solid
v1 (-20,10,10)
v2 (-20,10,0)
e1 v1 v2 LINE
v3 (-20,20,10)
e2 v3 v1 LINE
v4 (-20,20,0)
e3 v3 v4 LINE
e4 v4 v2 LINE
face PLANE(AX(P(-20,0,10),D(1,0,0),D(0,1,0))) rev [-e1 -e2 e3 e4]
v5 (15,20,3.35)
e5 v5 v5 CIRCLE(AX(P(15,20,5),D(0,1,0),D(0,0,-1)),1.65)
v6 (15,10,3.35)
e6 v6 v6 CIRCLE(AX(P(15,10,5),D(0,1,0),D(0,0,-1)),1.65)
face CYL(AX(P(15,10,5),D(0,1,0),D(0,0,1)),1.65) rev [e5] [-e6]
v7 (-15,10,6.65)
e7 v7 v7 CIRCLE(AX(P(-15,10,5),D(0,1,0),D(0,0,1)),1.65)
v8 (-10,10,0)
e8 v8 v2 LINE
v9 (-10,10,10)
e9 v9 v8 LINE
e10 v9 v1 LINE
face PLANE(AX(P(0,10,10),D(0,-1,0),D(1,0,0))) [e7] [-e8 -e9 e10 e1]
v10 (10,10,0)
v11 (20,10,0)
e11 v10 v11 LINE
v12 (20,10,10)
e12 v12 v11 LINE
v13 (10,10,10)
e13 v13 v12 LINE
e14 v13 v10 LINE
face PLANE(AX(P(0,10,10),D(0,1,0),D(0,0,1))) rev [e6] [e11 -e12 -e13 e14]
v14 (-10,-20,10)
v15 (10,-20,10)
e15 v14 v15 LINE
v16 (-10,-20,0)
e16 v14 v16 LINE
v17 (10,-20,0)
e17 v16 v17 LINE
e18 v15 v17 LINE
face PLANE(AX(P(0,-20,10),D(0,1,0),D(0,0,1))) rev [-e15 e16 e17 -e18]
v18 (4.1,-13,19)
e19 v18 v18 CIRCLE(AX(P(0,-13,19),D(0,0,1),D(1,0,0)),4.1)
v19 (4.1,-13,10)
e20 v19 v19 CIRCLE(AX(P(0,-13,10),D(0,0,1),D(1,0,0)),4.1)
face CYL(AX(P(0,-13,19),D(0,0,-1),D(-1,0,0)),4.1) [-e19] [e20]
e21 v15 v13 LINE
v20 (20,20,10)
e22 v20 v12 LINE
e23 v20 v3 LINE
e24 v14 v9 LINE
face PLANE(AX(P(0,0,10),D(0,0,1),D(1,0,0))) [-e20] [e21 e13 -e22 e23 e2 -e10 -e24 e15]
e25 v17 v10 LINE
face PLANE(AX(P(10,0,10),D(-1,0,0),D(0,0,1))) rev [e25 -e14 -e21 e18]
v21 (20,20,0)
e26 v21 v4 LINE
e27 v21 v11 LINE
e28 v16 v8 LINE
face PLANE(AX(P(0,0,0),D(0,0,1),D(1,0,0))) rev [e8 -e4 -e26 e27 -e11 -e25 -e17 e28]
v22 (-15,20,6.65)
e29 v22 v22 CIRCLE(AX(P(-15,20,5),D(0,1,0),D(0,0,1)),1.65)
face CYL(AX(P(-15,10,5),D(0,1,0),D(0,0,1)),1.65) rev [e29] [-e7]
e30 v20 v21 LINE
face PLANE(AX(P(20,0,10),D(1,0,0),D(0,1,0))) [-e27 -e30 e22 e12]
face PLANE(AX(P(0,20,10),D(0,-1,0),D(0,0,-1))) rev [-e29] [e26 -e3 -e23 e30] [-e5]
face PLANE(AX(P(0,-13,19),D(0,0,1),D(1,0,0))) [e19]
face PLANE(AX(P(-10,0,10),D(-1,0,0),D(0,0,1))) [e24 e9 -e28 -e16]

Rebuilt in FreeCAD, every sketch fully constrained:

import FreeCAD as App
import Part
import Sketcher

doc = App.newDocument("Part")
body = doc.addObject("PartDesign::Body", "Body")

# Sketch on XY plane
sketch1 = doc.addObject("Sketcher::SketchObject", "Sketch")
body.addObject(sketch1)
sketch1.AttachmentSupport = (doc.XY_Plane, [""])
sketch1.MapMode = "FlatFace"
sketch1.addGeometry(Part.LineSegment(App.Vector(-20, 20, 0), App.Vector(-20, 10, 0)), False)
sketch1.addGeometry(Part.LineSegment(App.Vector(-20, 10, 0), App.Vector(-10, 10, 0)), False)
sketch1.addGeometry(Part.LineSegment(App.Vector(-10, 10, 0), App.Vector(-10, -20, 0)), False)
sketch1.addGeometry(Part.LineSegment(App.Vector(-10, -20, 0), App.Vector(10, -20, 0)), False)
sketch1.addGeometry(Part.LineSegment(App.Vector(10, -20, 0), App.Vector(10, 10, 0)), False)
sketch1.addGeometry(Part.LineSegment(App.Vector(10, 10, 0), App.Vector(20, 10, 0)), False)
sketch1.addGeometry(Part.LineSegment(App.Vector(20, 10, 0), App.Vector(20, 20, 0)), False)
sketch1.addGeometry(Part.LineSegment(App.Vector(20, 20, 0), App.Vector(-20, 20, 0)), False)
sketch1.addConstraint(Sketcher.Constraint("Coincident", 0, 2, 1, 1))
sketch1.addConstraint(Sketcher.Constraint("Coincident", 1, 2, 2, 1))
sketch1.addConstraint(Sketcher.Constraint("Coincident", 2, 2, 3, 1))
sketch1.addConstraint(Sketcher.Constraint("Coincident", 3, 2, 4, 1))
sketch1.addConstraint(Sketcher.Constraint("Coincident", 4, 2, 5, 1))
sketch1.addConstraint(Sketcher.Constraint("Coincident", 5, 2, 6, 1))
sketch1.addConstraint(Sketcher.Constraint("Coincident", 6, 2, 7, 1))
sketch1.addConstraint(Sketcher.Constraint("Coincident", 7, 2, 0, 1))
sketch1.addConstraint(Sketcher.Constraint("Vertical", 0))
sketch1.addConstraint(Sketcher.Constraint("Horizontal", 1))
sketch1.addConstraint(Sketcher.Constraint("Vertical", 2))
sketch1.addConstraint(Sketcher.Constraint("Horizontal", 3))
sketch1.addConstraint(Sketcher.Constraint("Vertical", 4))
sketch1.addConstraint(Sketcher.Constraint("Horizontal", 5))
sketch1.addConstraint(Sketcher.Constraint("Vertical", 6))
sketch1.addConstraint(Sketcher.Constraint("Horizontal", 7))
sketch1.addConstraint(Sketcher.Constraint("Symmetric", 1, 2, 4, 2, -2))
sketch1.addConstraint(Sketcher.Constraint("Equal", 1, 5))
sketch1.addConstraint(Sketcher.Constraint("Equal", 5, 0))
sketch1.addConstraint(Sketcher.Constraint("DistanceX", 1, 1, 1, 2, 10.0))
sketch1.addConstraint(Sketcher.Constraint("DistanceX", 3, 1, 3, 2, 20.0))
sketch1.addConstraint(Sketcher.Constraint("DistanceY", 2, 2, 2, 1, 30.0))
sketch1.addConstraint(Sketcher.Constraint("DistanceY", -1, 1, 0, 2, 10.0))
pad1 = doc.addObject("PartDesign::Pad", "Pad")
body.addObject(pad1)
pad1.Profile = sketch1
pad1.Length = 10

# Sketch on XY plane
sketch2 = doc.addObject("Sketcher::SketchObject", "Sketch001")
body.addObject(sketch2)
sketch2.AttachmentSupport = (doc.XY_Plane, [""])
sketch2.MapMode = "FlatFace"
sketch2.AttachmentOffset = App.Placement(App.Vector(0, 0, 10), App.Rotation())
sketch2.addGeometry(Part.Circle(App.Vector(0, -13, 0), App.Vector(0, 0, 1), 4.1), False)
sketch2.addConstraint(Sketcher.Constraint("PointOnObject", 0, 3, -2))
sketch2.addConstraint(Sketcher.Constraint("Diameter", 0, 8.2))
sketch2.addConstraint(Sketcher.Constraint("DistanceY", 0, 3, -1, 1, 13.0))
pad2 = doc.addObject("PartDesign::Pad", "Pad001")
body.addObject(pad2)
pad2.Profile = sketch2
pad2.Length = 9

# Sketch on XZ plane
sketch3 = doc.addObject("Sketcher::SketchObject", "Sketch002")
body.addObject(sketch3)
sketch3.AttachmentSupport = (doc.XZ_Plane, [""])
sketch3.MapMode = "FlatFace"
sketch3.AttachmentOffset = App.Placement(App.Vector(0, 0, -20), App.Rotation())
sketch3.addGeometry(Part.Circle(App.Vector(-15, 5, 0), App.Vector(0, 0, 1), 1.65), False)
sketch3.addGeometry(Part.Circle(App.Vector(15, 5, 0), App.Vector(0, 0, 1), 1.65), False)
sketch3.addConstraint(Sketcher.Constraint("Equal", 0, 1))
sketch3.addConstraint(Sketcher.Constraint("Symmetric", 0, 3, 1, 3, -2))
sketch3.addConstraint(Sketcher.Constraint("Diameter", 0, 3.3))
sketch3.addConstraint(Sketcher.Constraint("DistanceX", 0, 3, -1, 1, 15.0))
sketch3.addConstraint(Sketcher.Constraint("DistanceY", -1, 1, 0, 3, 5.0))
pocket1 = doc.addObject("PartDesign::Pocket", "Pocket")
body.addObject(pocket1)
pocket1.Profile = sketch3
pocket1.Length = 10
pocket1.Reversed = True

doc.recompute()
